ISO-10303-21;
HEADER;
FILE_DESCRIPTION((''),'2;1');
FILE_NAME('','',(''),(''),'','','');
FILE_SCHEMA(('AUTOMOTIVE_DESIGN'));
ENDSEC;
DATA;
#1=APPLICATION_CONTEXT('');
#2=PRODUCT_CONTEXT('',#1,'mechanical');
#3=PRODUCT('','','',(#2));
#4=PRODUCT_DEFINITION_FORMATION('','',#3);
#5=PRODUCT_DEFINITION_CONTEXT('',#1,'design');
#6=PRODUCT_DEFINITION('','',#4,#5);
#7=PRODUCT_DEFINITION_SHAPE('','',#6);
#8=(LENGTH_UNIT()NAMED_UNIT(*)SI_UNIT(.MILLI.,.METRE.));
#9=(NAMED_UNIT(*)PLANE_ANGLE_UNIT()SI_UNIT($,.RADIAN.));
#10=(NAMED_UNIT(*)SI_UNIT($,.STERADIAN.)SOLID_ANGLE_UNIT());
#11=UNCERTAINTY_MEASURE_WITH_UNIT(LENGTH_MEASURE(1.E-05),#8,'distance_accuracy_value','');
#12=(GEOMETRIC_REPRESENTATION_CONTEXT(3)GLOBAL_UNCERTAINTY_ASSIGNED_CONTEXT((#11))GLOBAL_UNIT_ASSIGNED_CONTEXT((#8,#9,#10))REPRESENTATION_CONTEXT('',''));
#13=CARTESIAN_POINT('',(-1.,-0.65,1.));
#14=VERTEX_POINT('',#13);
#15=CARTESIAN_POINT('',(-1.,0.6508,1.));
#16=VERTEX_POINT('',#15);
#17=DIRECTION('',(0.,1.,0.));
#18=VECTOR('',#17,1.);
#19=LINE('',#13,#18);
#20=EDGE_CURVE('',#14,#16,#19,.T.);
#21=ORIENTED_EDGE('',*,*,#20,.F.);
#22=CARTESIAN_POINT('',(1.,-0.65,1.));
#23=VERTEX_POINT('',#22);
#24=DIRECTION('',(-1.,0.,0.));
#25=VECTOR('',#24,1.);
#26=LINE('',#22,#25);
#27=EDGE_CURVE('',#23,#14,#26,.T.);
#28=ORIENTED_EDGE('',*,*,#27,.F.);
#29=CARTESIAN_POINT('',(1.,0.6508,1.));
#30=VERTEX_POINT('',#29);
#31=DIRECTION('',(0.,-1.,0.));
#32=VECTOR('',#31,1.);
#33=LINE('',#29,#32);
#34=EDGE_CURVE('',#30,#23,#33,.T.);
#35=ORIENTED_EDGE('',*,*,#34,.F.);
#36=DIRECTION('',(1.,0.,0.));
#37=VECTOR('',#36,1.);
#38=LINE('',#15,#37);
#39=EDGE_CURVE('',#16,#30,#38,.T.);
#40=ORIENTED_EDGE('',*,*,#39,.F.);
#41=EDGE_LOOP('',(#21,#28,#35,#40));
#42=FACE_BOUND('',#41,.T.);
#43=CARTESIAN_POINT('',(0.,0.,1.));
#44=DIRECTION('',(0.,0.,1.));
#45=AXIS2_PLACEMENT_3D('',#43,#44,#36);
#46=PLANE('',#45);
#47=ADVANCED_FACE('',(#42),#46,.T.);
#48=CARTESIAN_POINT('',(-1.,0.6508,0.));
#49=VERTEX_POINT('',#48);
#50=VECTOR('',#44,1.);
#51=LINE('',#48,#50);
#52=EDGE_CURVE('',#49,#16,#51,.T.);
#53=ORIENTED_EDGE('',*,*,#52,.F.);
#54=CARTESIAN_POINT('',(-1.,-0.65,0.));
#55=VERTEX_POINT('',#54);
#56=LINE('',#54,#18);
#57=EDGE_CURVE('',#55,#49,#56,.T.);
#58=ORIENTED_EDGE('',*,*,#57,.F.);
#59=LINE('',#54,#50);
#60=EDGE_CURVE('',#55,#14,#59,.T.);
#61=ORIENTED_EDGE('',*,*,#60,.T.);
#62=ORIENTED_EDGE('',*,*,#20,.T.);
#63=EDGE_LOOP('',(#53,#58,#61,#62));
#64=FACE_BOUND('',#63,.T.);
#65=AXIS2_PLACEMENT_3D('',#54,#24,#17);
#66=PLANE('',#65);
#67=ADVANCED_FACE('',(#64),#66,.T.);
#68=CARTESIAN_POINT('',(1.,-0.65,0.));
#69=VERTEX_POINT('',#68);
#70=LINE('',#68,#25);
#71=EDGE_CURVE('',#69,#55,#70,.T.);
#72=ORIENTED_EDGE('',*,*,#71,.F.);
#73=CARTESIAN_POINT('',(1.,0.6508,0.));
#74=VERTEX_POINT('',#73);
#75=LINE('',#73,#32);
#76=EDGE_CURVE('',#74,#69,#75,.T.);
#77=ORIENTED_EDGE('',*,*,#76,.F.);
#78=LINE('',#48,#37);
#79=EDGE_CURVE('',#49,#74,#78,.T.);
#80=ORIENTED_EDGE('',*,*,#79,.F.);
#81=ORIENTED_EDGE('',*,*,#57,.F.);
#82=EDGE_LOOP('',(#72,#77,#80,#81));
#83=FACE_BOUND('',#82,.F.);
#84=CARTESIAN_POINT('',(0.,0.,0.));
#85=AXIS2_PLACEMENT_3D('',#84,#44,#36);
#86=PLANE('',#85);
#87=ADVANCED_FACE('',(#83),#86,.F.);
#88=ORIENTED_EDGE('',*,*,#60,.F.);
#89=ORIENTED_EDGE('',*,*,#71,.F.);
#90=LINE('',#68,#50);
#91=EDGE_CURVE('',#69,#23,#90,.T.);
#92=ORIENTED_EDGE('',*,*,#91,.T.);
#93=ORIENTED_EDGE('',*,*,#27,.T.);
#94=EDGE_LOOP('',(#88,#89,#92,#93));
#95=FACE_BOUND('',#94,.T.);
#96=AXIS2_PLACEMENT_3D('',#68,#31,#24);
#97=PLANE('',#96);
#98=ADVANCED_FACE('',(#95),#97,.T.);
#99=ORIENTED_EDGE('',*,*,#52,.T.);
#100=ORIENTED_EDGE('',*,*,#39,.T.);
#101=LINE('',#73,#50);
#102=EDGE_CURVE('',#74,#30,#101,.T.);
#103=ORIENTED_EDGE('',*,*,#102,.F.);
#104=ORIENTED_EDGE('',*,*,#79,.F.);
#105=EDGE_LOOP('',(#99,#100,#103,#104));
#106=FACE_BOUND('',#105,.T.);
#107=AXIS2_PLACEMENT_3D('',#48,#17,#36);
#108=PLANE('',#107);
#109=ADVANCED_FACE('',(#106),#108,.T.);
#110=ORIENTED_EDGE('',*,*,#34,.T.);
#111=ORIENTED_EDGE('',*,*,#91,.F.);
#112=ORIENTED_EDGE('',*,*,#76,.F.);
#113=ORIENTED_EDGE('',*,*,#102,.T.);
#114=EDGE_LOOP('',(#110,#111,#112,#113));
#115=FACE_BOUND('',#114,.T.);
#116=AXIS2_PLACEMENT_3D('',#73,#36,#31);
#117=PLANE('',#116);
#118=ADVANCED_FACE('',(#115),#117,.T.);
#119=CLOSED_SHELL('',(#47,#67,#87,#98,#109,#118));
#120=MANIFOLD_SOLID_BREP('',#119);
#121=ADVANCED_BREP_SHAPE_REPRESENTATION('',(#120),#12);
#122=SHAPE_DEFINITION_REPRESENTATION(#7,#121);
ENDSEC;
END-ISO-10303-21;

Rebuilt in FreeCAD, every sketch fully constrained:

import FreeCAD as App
import Part
import Sketcher

V = App.Vector

doc = App.newDocument("Part")
params = doc.addObject("Spreadsheet::Sheet", "Params")
for row, (alias, value) in enumerate([
    ("sketch1_width", "2 mm"),
    ("pad1_length", "1 mm"),
], start=1):
    params.set(f"A{row}", alias)
    params.set(f"B{row}", "=" + value)
    params.setAlias(f"B{row}", alias)

body = doc.addObject("PartDesign::Body", "Body")

sketch1 = body.newObject("Sketcher::SketchObject", "Sketch")
sketch1.AttachmentSupport = (doc.getObject("XY_Plane"), [""])
sketch1.MapMode = "FlatFace"
sketch1.addGeometry([
    Part.LineSegment(V(1, 0.7, 0), V(-1, 0.7, 0)),
    Part.LineSegment(V(-1, 0.7, 0), V(-1, -0.7, 0)),
    Part.LineSegment(V(-1, -0.7, 0), V(1, -0.7, 0)),
    Part.LineSegment(V(1, -0.7, 0), V(1, 0.7, 0)),
], False)
sketch1.addConstraint([
    Sketcher.Constraint("Coincident", 0, 2, 1, 1),
    Sketcher.Constraint("Coincident", 1, 2, 2, 1),
    Sketcher.Constraint("Coincident", 2, 2, 3, 1),
    Sketcher.Constraint("Coincident", 3, 2, 0, 1),
    Sketcher.Constraint("Horizontal", 0),
    Sketcher.Constraint("Vertical", 1),
    Sketcher.Constraint("Horizontal", 2),
    Sketcher.Constraint("Vertical", 3),
    Sketcher.Constraint("DistanceX", 0, 2, 0, 1, 2.0),
    Sketcher.Constraint("DistanceX", 0, 2, -1, 1, 1.0),
    Sketcher.Constraint("DistanceY", 1, 2, -1, 1, 0.65),
    Sketcher.Constraint("DistanceY", 1, 2, 1, 1, 1.3008),
])
sketch1.setExpression("Constraints[8]", "Params.sketch1_width")
pad1 = body.newObject("PartDesign::Pad", "Pad")
pad1.Profile = sketch1
pad1.setExpression("Length", "Params.pad1_length")

doc.recompute()
